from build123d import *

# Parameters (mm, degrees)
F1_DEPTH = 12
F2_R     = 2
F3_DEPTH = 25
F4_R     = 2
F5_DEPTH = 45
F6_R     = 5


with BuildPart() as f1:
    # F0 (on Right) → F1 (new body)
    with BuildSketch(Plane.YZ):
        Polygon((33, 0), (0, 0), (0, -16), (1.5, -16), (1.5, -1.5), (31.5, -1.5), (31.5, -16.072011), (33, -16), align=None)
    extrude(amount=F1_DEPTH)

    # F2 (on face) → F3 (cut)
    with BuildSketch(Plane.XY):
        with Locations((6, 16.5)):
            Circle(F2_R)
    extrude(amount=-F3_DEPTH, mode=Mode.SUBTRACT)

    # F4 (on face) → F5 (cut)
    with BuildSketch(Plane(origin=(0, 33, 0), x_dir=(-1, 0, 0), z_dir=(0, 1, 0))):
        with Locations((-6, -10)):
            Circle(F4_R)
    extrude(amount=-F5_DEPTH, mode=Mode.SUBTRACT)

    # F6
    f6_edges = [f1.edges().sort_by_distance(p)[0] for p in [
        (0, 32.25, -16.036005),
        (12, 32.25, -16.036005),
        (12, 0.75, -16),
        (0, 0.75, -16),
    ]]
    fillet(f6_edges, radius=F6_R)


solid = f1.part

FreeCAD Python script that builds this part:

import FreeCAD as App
import Part
import Sketcher


def edges_at(feature, points):
    """Names of the edges that pass closest to the given points."""
    edges = feature.Shape.Edges
    near = lambda p: min(range(len(edges)), key=lambda i: edges[i].distToShape(Part.Vertex(*p))[0])
    return sorted({f"Edge{near(p) + 1}" for p in points})


def add_polygon(sketch, points):
    """Adds a closed chain of lines whose ends are joined by coincident constraints."""
    first, n = sketch.GeometryCount, len(points)
    for a, b in zip(points, points[1:] + points[:1]):
        sketch.addGeometry(Part.LineSegment(App.Vector(*a, 0), App.Vector(*b, 0)), False)
    for i in range(n):
        sketch.addConstraint(Sketcher.Constraint("Coincident", first + i, 2, first + (i + 1) % n, 1))

doc = App.newDocument("Part")
params = doc.addObject("Spreadsheet::Sheet", "Params")
for row, (alias, value) in enumerate([
    ("sketch1_width", "33 mm"),
    ("sketch1_width2", "30 mm"),
    ("sketch1_height", "16 mm"),
    ("sketch1_width3", "1.5 mm"),
    ("sketch1_height2", "14.5 mm"),
    ("pad1_length", "12 mm"),
    ("sketch2_diameter", "4 mm"),
    ("pocket1_length", "25 mm"),
    ("sketch3_diameter", "4 mm"),
    ("pocket2_length", "45 mm"),
    ("fillet_radius", "5 mm"),
], start=1):
    params.set(f"A{row}", alias)
    params.set(f"B{row}", "=" + value)
    params.setAlias(f"B{row}", alias)

body = doc.addObject("PartDesign::Body", "Body")

sketch1 = body.newObject("Sketcher::SketchObject", "Sketch")
sketch1.AttachmentSupport = (doc.getObject("YZ_Plane"), [""])
sketch1.MapMode = "FlatFace"
add_polygon(sketch1, [(33, 0), (0, 0), (0, -16), (1.5, -16), (1.5, -1.5), (31.5, -1.5), (31.5, -16.1), (33, -16)])
sketch1.addConstraint([
    Sketcher.Constraint("Horizontal", 0),
    Sketcher.Constraint("Vertical", 1),
    Sketcher.Constraint("Horizontal", 2),
    Sketcher.Constraint("Vertical", 3),
    Sketcher.Constraint("Horizontal", 4),
    Sketcher.Constraint("Vertical", 5),
    Sketcher.Constraint("Vertical", 7),
    Sketcher.Constraint("Coincident", 0, 2, -1, 1),
    Sketcher.Constraint("Horizontal", 2, 2, 6, 2),
    Sketcher.Constraint("DistanceX", 0, 2, 0, 1, 33.0),
    Sketcher.Constraint("DistanceX", 4, 1, 4, 2, 30.0),
    Sketcher.Constraint("DistanceY", 1, 2, 1, 1, 16.0),
    Sketcher.Constraint("DistanceX", 2, 1, 2, 2, 1.5),
    Sketcher.Constraint("DistanceY", 3, 1, 3, 2, 14.5),
    Sketcher.Constraint("DistanceY", 5, 2, 5, 1, 14.572011),
])
sketch1.setExpression("Constraints[17]", "Params.sketch1_width")
sketch1.setExpression("Constraints[18]", "Params.sketch1_width2")
sketch1.setExpression("Constraints[19]", "Params.sketch1_height")
sketch1.setExpression("Constraints[20]", "Params.sketch1_width3")
sketch1.setExpression("Constraints[21]", "Params.sketch1_height2")
pad1 = body.newObject("PartDesign::Pad", "Pad")
pad1.Profile = sketch1
pad1.setExpression("Length", "Params.pad1_length")

sketch2 = body.newObject("Sketcher::SketchObject", "Sketch001")
sketch2.AttachmentSupport = (doc.getObject("XY_Plane"), [""])
sketch2.MapMode = "FlatFace"
sketch2.addGeometry(Part.Circle(App.Vector(6, 16.5, 0), App.Vector(0, 0, 1), 2), False)
sketch2.addConstraint([
    Sketcher.Constraint("Diameter", 0, 4.0),
    Sketcher.Constraint("DistanceX", -1, 1, 0, 3, 6.0),
    Sketcher.Constraint("DistanceY", -1, 1, 0, 3, 16.5),
])
sketch2.setExpression("Constraints[0]", "Params.sketch2_diameter")
pocket1 = body.newObject("PartDesign::Pocket", "Pocket")
pocket1.Profile = sketch2
pocket1.setExpression("Length", "Params.pocket1_length")

sketch3 = body.newObject("Sketcher::SketchObject", "Sketch002")
sketch3.AttachmentSupport = (doc.getObject("XZ_Plane"), [""])
sketch3.MapMode = "FlatFace"
sketch3.AttachmentOffset = App.Placement(App.Vector(0, 0, -33), App.Rotation())
sketch3.addGeometry(Part.Circle(App.Vector(6, -10, 0), App.Vector(0, 0, 1), 2), False)
sketch3.addConstraint([
    Sketcher.Constraint("Diameter", 0, 4.0),
    Sketcher.Constraint("DistanceX", -1, 1, 0, 3, 6.0),
    Sketcher.Constraint("DistanceY", 0, 3, -1, 1, 10.0),
])
sketch3.setExpression("Constraints[0]", "Params.sketch3_diameter")
pocket2 = body.newObject("PartDesign::Pocket", "Pocket001")
pocket2.Profile = sketch3
pocket2.setExpression("Length", "Params.pocket2_length")
pocket2.Reversed = True
doc.recompute()

fillet = body.newObject("PartDesign::Fillet", "Fillet")
fillet.Base = (pocket2, edges_at(pocket2, [
    (0, 32.25, -16.036),
    (12, 32.25, -16.036),
    (12, 0.75, -16),
    (0, 0.75, -16),
]))
fillet.setExpression("Radius", "Params.fillet_radius")

doc.recompute()
